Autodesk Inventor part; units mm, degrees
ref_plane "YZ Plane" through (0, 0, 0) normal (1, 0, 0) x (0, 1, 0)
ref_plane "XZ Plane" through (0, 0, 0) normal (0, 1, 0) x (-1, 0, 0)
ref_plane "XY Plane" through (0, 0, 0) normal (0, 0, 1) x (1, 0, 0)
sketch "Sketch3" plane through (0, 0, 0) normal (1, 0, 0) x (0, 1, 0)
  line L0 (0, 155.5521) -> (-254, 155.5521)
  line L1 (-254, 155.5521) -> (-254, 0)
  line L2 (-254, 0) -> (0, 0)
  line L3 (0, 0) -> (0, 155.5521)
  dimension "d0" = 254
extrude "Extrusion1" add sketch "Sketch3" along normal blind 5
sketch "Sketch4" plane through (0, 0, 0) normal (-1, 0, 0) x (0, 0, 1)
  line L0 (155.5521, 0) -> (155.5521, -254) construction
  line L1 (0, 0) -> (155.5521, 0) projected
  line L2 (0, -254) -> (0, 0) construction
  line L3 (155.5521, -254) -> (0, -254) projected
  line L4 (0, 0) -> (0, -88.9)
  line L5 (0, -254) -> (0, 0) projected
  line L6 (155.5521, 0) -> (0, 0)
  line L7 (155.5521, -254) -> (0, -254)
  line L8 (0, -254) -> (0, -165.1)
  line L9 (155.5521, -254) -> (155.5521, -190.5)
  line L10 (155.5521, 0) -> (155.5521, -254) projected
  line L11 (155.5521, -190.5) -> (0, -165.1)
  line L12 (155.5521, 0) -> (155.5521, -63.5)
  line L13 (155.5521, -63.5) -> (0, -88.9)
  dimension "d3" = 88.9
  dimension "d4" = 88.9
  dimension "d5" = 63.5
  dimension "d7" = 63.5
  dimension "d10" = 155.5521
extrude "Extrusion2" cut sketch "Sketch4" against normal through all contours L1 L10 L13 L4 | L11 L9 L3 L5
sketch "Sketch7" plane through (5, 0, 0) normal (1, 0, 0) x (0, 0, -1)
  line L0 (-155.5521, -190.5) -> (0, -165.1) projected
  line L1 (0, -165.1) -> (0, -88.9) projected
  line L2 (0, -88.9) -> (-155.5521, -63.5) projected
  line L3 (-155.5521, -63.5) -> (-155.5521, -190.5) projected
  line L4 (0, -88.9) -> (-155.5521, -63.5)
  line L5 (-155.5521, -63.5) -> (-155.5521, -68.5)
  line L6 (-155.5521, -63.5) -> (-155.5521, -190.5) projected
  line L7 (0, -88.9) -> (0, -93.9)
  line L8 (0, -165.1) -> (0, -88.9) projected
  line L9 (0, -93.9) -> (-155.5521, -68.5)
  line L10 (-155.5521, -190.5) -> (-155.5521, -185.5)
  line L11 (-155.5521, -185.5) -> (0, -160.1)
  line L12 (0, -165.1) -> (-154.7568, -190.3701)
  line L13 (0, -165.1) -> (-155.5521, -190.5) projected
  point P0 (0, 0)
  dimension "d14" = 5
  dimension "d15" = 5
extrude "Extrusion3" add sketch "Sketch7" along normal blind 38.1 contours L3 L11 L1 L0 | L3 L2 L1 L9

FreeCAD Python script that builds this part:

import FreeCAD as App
import Part
import Sketcher

V = App.Vector
Q = App.Units.Quantity

doc = App.newDocument("Part")
body = doc.addObject("PartDesign::Body", "Body")

sketch1 = doc.addObject("Sketcher::SketchObject", "Sketch")
body.addObject(sketch1)
sketch1.AttachmentSupport = (doc.YZ_Plane, [""])
sketch1.MapMode = "FlatFace"
sketch1.addGeometry([
    Part.LineSegment(V(0, 0, 0), V(0, 155.5521, 0)),
    Part.LineSegment(V(0, 155.5521, 0), V(-254, 155.5521, 0)),
    Part.LineSegment(V(-254, 155.5521, 0), V(-254, 0, 0)),
    Part.LineSegment(V(-254, 0, 0), V(0, 0, 0)),
], False)
sketch1.addConstraint([
    Sketcher.Constraint("Coincident", 0, 2, 1, 1),
    Sketcher.Constraint("Coincident", 1, 2, 2, 1),
    Sketcher.Constraint("Coincident", 2, 2, 3, 1),
    Sketcher.Constraint("Coincident", 3, 2, 0, 1),
    Sketcher.Constraint("Vertical", 0),
    Sketcher.Constraint("Horizontal", 1),
    Sketcher.Constraint("Vertical", 2),
    Sketcher.Constraint("Horizontal", 3),
    Sketcher.Constraint("Coincident", 3, 2, -1, 1),
    Sketcher.Constraint("DistanceX", 1, 2, 1, 1, Q("10 in")),
    Sketcher.Constraint("DistanceY", 0, 1, 0, 2, Q("6.1241 in")),
])
pad1 = doc.addObject("PartDesign::Pad", "Pad")
body.addObject(pad1)
pad1.Profile = sketch1
pad1.Length = 5

sketch2 = doc.addObject("Sketcher::SketchObject", "Sketch001")
body.addObject(sketch2)
sketch2.AttachmentSupport = (doc.YZ_Plane, [""])
sketch2.MapMode = "FlatFace"
sketch2.addGeometry([
    Part.LineSegment(V(0, 155.5521, 0), V(0, 0, 0)),
    Part.LineSegment(V(0, 0, 0), V(-88.9, 0, 0)),
    Part.LineSegment(V(-88.9, 0, 0), V(-63.5, 155.5521, 0)),
    Part.LineSegment(V(-63.5, 155.5521, 0), V(0, 155.5521, 0)),
    Part.LineSegment(V(-190.5, 155.5521, 0), V(-165.1, 0, 0)),
    Part.LineSegment(V(-165.1, 0, 0), V(-254, 0, 0)),
    Part.LineSegment(V(-254, 0, 0), V(-254, 155.5521, 0)),
    Part.LineSegment(V(-254, 155.5521, 0), V(-190.5, 155.5521, 0)),
], False)
sketch2.addConstraint([
    Sketcher.Constraint("Coincident", 0, 2, 1, 1),
    Sketcher.Constraint("Coincident", 1, 2, 2, 1),
    Sketcher.Constraint("Coincident", 2, 2, 3, 1),
    Sketcher.Constraint("Coincident", 3, 2, 0, 1),
    Sketcher.Constraint("Coincident", 4, 2, 5, 1),
    Sketcher.Constraint("Coincident", 5, 2, 6, 1),
    Sketcher.Constraint("Coincident", 6, 2, 7, 1),
    Sketcher.Constraint("Coincident", 7, 2, 4, 1),
    Sketcher.Constraint("Vertical", 0),
    Sketcher.Constraint("Horizontal", 1),
    Sketcher.Constraint("Horizontal", 3),
    Sketcher.Constraint("Horizontal", 5),
    Sketcher.Constraint("Vertical", 6),
    Sketcher.Constraint("Horizontal", 7),
    Sketcher.Constraint("Coincident", 0, 2, -1, 1),
    Sketcher.Constraint("PointOnObject", 4, 2, -1),
    Sketcher.Constraint("Horizontal", 3, 2, 6, 2),
    Sketcher.Constraint("Equal", 1, 5),
    Sketcher.Constraint("Equal", 3, 7),
    Sketcher.Constraint("DistanceX", 1, 2, 1, 1, Q("3.5 in")),
    Sketcher.Constraint("DistanceX", 3, 1, 3, 2, Q("2.5 in")),
    Sketcher.Constraint("DistanceY", 0, 2, 0, 1, Q("6.1241 in")),
    Sketcher.Constraint("DistanceX", 5, 2, -1, 1, Q("10 in")),
])
pocket1 = doc.addObject("PartDesign::Pocket", "Pocket")
body.addObject(pocket1)
pocket1.Profile = sketch2
pocket1.Type = "ThroughAll"
pocket1.Reversed = True

sketch3 = doc.addObject("Sketcher::SketchObject", "Sketch002")
body.addObject(sketch3)
sketch3.AttachmentSupport = (doc.YZ_Plane, [""])
sketch3.MapMode = "FlatFace"
sketch3.AttachmentOffset = App.Placement(V(0, 0, 5), App.Rotation())
sketch3.addGeometry([
    Part.LineSegment(V(-185.5, 155.5521, 0), V(-190.5, 155.5521, 0)),
    Part.LineSegment(V(-190.5, 155.5521, 0), V(-165.1, 0, 0)),
    Part.LineSegment(V(-165.1, 0, 0), V(-160.1, 0, 0)),
    Part.LineSegment(V(-160.1, 0, 0), V(-185.5, 155.5521, 0)),
    Part.LineSegment(V(-63.5, 155.5521, 0), V(-68.5, 155.5521, 0)),
    Part.LineSegment(V(-68.5, 155.5521, 0), V(-93.9, 0, 0)),
    Part.LineSegment(V(-93.9, 0, 0), V(-88.9, 0, 0)),
    Part.LineSegment(V(-88.9, 0, 0), V(-63.5, 155.5521, 0)),
], False)
sketch3.addConstraint([
    Sketcher.Constraint("Coincident", 0, 2, 1, 1),
    Sketcher.Constraint("Coincident", 1, 2, 2, 1),
    Sketcher.Constraint("Coincident", 2, 2, 3, 1),
    Sketcher.Constraint("Coincident", 3, 2, 0, 1),
    Sketcher.Constraint("Coincident", 4, 2, 5, 1),
    Sketcher.Constraint("Coincident", 5, 2, 6, 1),
    Sketcher.Constraint("Coincident", 6, 2, 7, 1),
    Sketcher.Constraint("Coincident", 7, 2, 4, 1),
    Sketcher.Constraint("Horizontal", 0),
    Sketcher.Constraint("Horizontal", 2),
    Sketcher.Constraint("Horizontal", 4),
    Sketcher.Constraint("Horizontal", 6),
    Sketcher.Constraint("PointOnObject", 1, 2, -1),
    Sketcher.Constraint("PointOnObject", 5, 2, -1),
    Sketcher.Constraint("Parallel", 1, 3),
    Sketcher.Constraint("Parallel", 5, 7),
    Sketcher.Constraint("Horizontal", 3, 2, 4, 2),
    Sketcher.Constraint("Equal", 2, 4),
    Sketcher.Constraint("Equal", 3, 5),
    Sketcher.Constraint("DistanceX", 0, 2, 1, 2, Q("1 in")),
    Sketcher.Constraint("DistanceX", 1, 2, 6, 2, Q("3 in")),
    Sketcher.Constraint("DistanceX", 0, 2, 0, 1, 5.0),
    Sketcher.Constraint("DistanceX", 0, 2, -1, 1, Q("7.5 in")),
    Sketcher.Constraint("Distance", 1, Q("6.2052 in")),
])
pad2 = doc.addObject("PartDesign::Pad", "Pad001")
body.addObject(pad2)
pad2.Profile = sketch3
pad2.Length = Q("1.5 in")

doc.recompute()
